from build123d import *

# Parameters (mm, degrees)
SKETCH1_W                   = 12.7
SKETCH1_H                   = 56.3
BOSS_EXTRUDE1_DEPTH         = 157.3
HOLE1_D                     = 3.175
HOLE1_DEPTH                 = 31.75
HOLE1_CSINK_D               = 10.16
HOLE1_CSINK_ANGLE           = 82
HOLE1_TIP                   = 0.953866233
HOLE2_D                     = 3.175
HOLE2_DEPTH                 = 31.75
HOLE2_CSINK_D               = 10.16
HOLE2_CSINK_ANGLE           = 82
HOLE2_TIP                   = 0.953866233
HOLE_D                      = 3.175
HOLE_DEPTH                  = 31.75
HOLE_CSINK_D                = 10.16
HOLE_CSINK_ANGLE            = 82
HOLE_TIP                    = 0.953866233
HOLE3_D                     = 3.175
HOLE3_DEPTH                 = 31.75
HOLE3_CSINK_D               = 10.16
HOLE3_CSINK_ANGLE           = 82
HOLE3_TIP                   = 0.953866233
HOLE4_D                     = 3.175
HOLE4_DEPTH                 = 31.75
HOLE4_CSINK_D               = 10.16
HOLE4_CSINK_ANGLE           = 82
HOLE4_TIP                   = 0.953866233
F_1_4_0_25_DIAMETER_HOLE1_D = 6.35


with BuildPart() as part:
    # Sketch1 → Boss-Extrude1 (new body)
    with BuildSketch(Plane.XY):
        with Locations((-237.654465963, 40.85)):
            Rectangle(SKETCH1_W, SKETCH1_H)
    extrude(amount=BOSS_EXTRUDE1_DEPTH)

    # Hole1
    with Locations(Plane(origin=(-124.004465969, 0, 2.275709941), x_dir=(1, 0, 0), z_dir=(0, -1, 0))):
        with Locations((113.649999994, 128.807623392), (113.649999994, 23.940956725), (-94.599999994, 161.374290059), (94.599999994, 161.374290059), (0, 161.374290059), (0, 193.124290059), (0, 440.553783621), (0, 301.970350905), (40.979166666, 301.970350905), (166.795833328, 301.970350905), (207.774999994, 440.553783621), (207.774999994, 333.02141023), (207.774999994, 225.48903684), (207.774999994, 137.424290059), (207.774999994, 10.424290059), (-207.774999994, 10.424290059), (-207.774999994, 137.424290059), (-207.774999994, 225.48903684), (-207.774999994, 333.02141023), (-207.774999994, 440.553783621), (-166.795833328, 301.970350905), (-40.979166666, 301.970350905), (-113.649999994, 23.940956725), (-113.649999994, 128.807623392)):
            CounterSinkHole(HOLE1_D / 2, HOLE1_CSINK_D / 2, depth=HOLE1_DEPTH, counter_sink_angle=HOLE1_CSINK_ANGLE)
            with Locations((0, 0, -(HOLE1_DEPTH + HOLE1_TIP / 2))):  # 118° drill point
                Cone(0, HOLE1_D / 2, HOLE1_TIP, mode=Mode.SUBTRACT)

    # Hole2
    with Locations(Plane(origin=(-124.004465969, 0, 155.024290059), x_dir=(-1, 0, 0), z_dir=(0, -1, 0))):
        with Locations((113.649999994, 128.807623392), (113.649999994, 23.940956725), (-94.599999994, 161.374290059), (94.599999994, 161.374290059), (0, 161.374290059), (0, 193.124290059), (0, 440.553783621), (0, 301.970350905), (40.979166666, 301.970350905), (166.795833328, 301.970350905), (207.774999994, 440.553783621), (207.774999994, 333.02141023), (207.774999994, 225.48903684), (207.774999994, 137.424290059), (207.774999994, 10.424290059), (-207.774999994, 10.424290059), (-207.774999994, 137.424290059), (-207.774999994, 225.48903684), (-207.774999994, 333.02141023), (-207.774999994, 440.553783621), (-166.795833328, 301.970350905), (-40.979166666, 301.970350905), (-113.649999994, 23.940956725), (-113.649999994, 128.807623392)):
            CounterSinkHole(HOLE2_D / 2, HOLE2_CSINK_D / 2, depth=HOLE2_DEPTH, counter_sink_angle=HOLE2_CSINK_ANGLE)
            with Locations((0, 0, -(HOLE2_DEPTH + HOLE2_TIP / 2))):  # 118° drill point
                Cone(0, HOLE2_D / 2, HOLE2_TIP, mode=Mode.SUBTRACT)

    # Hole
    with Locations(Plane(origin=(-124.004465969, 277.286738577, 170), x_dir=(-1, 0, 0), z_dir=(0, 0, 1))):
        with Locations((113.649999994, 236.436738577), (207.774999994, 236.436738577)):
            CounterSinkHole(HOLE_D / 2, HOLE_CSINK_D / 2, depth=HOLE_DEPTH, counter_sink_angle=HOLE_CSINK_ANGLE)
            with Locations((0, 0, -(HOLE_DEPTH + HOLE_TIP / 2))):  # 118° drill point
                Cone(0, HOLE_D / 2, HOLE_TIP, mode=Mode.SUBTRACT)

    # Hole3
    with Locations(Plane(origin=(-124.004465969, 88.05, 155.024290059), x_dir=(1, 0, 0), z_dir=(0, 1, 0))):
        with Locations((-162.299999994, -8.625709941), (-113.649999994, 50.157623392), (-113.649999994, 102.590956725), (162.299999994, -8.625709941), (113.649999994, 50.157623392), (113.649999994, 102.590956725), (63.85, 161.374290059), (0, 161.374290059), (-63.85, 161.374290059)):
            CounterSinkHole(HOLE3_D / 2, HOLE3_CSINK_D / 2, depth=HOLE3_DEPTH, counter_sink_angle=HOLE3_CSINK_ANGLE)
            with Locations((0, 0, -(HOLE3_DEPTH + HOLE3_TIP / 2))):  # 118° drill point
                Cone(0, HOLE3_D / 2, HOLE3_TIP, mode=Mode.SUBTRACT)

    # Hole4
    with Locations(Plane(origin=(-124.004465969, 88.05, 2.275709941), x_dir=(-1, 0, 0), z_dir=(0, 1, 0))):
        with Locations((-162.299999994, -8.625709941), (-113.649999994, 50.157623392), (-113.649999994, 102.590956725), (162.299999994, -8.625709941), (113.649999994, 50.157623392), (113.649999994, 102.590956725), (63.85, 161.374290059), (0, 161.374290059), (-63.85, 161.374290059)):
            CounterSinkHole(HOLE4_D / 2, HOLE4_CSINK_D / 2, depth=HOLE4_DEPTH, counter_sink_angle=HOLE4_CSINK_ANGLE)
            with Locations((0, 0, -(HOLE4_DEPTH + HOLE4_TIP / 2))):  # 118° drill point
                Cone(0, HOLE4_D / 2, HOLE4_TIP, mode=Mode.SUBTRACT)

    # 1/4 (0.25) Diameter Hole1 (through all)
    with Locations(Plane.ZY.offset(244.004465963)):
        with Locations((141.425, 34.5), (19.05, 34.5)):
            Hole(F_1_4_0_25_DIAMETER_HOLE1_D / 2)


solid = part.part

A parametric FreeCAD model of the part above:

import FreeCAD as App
import Part
import Sketcher

V = App.Vector
Q = App.Units.Quantity


def add_polygon(sketch, points):
    """Adds a closed chain of lines whose ends are joined by coincident constraints."""
    first, n = sketch.GeometryCount, len(points)
    for a, b in zip(points, points[1:] + points[:1]):
        sketch.addGeometry(Part.LineSegment(App.Vector(*a, 0), App.Vector(*b, 0)), False)
    for i in range(n):
        sketch.addConstraint(Sketcher.Constraint("Coincident", first + i, 2, first + (i + 1) % n, 1))

doc = App.newDocument("Part")
body = doc.addObject("PartDesign::Body", "Body")

sketch1 = doc.addObject("Sketcher::SketchObject", "Sketch")
body.addObject(sketch1)
sketch1.AttachmentSupport = (doc.XY_Plane, [""])
sketch1.MapMode = "FlatFace"
add_polygon(sketch1, [(-244, 69), (-244, 13), (-231, 13), (-231, 69)])
sketch1.addConstraint([
    Sketcher.Constraint("Vertical", 0),
    Sketcher.Constraint("Horizontal", 1),
    Sketcher.Constraint("Vertical", 2),
    Sketcher.Constraint("Horizontal", 3),
    Sketcher.Constraint("DistanceX", 1, 1, 1, 2, Q("0.5 in")),
    Sketcher.Constraint("DistanceY", -1, 1, 0, 2, Q("0.5 in")),
    Sketcher.Constraint("DistanceY", 0, 2, 0, 1, 56.3),
    Sketcher.Constraint("DistanceX", 0, 2, -1, 1, 244.004466),
])
pad1 = doc.addObject("PartDesign::Pad", "Pad")
body.addObject(pad1)
pad1.Profile = sketch1
pad1.Length = 157.3

sketch2 = doc.addObject("Sketcher::SketchObject", "Sketch001")
body.addObject(sketch2)
sketch2.AttachmentSupport = (doc.XZ_Plane, [""])
sketch2.MapMode = "FlatFace"
sketch2.addGeometry([
    Part.Circle(V(-10.4, 131.1, 0), V(0, 0, 1), 1.6),
    Part.Circle(V(-10.4, 26.2, 0), V(0, 0, 1), 1.6),
    Part.Circle(V(-218.6, 163.7, 0), V(0, 0, 1), 1.6),
    Part.Circle(V(-29.4, 163.7, 0), V(0, 0, 1), 1.6),
    Part.Circle(V(-124, 163.7, 0), V(0, 0, 1), 1.6),
    Part.Circle(V(-124, 195.4, 0), V(0, 0, 1), 1.6),
    Part.Circle(V(-124, 442.8, 0), V(0, 0, 1), 1.6),
    Part.Circle(V(-124, 304.2, 0), V(0, 0, 1), 1.6),
    Part.Circle(V(-83, 304.2, 0), V(0, 0, 1), 1.6),
    Part.Circle(V(42.8, 304.2, 0), V(0, 0, 1), 1.6),
    Part.Circle(V(83.8, 442.8, 0), V(0, 0, 1), 1.6),
    Part.Circle(V(83.8, 335.3, 0), V(0, 0, 1), 1.6),
    Part.Circle(V(83.8, 227.8, 0), V(0, 0, 1), 1.6),
    Part.Circle(V(83.8, 139.7, 0), V(0, 0, 1), 1.6),
    Part.Circle(V(83.8, 12.7, 0), V(0, 0, 1), 1.6),
    Part.Circle(V(-331.8, 12.7, 0), V(0, 0, 1), 1.6),
    Part.Circle(V(-331.8, 139.7, 0), V(0, 0, 1), 1.6),
    Part.Circle(V(-331.8, 227.8, 0), V(0, 0, 1), 1.6),
    Part.Circle(V(-331.8, 335.3, 0), V(0, 0, 1), 1.6),
    Part.Circle(V(-331.8, 442.8, 0), V(0, 0, 1), 1.6),
    Part.Circle(V(-290.8, 304.2, 0), V(0, 0, 1), 1.6),
    Part.Circle(V(-165, 304.2, 0), V(0, 0, 1), 1.6),
    Part.Circle(V(-237.7, 26.2, 0), V(0, 0, 1), 1.6),
    Part.Circle(V(-237.7, 131.1, 0), V(0, 0, 1), 1.6),
], False)
sketch2.addConstraint([
    Sketcher.Constraint("Equal", 0, 1),
    Sketcher.Constraint("Equal", 1, 2),
    Sketcher.Constraint("Equal", 2, 3),
    Sketcher.Constraint("Equal", 3, 4),
    Sketcher.Constraint("Equal", 4, 5),
    Sketcher.Constraint("Equal", 5, 6),
    Sketcher.Constraint("Equal", 6, 7),
    Sketcher.Constraint("Equal", 7, 8),
    Sketcher.Constraint("Equal", 8, 9),
    Sketcher.Constraint("Equal", 9, 10),
    Sketcher.Constraint("Equal", 10, 11),
    Sketcher.Constraint("Equal", 11, 12),
    Sketcher.Constraint("Equal", 12, 13),
    Sketcher.Constraint("Equal", 13, 14),
    Sketcher.Constraint("Equal", 14, 15),
    Sketcher.Constraint("Equal", 15, 16),
    Sketcher.Constraint("Equal", 16, 17),
    Sketcher.Constraint("Equal", 17, 18),
    Sketcher.Constraint("Equal", 18, 19),
    Sketcher.Constraint("Equal", 19, 20),
    Sketcher.Constraint("Equal", 20, 21),
    Sketcher.Constraint("Equal", 21, 22),
    Sketcher.Constraint("Equal", 22, 23),
    Sketcher.Constraint("Horizontal", 2, 3, 3, 3),
    Sketcher.Constraint("Horizontal", 3, 3, 4, 3),
    Sketcher.Constraint("Horizontal", 7, 3, 8, 3),
    Sketcher.Constraint("Horizontal", 8, 3, 9, 3),
    Sketcher.Constraint("Horizontal", 6, 3, 10, 3),
    Sketcher.Constraint("Horizontal", 14, 3, 15, 3),
    Sketcher.Constraint("Horizontal", 13, 3, 16, 3),
    Sketcher.Constraint("Horizontal", 12, 3, 17, 3),
    Sketcher.Constraint("Horizontal", 11, 3, 18, 3),
    Sketcher.Constraint("Horizontal", 10, 3, 19, 3),
    Sketcher.Constraint("Horizontal", 9, 3, 20, 3),
    Sketcher.Constraint("Horizontal", 20, 3, 21, 3),
    Sketcher.Constraint("Horizontal", 1, 3, 22, 3),
    Sketcher.Constraint("Horizontal", 0, 3, 23, 3),
    Sketcher.Constraint("Vertical", 0, 3, 1, 3),
    Sketcher.Constraint("Vertical", 4, 3, 5, 3),
    Sketcher.Constraint("Vertical", 5, 3, 6, 3),
    Sketcher.Constraint("Vertical", 6, 3, 7, 3),
    Sketcher.Constraint("Vertical", 10, 3, 11, 3),
    Sketcher.Constraint("Vertical", 11, 3, 12, 3),
    Sketcher.Constraint("Vertical", 12, 3, 13, 3),
    Sketcher.Constraint("Vertical", 13, 3, 14, 3),
    Sketcher.Constraint("Vertical", 15, 3, 16, 3),
    Sketcher.Constraint("Vertical", 16, 3, 17, 3),
    Sketcher.Constraint("Vertical", 17, 3, 18, 3),
    Sketcher.Constraint("Vertical", 18, 3, 19, 3),
    Sketcher.Constraint("Vertical", 22, 3, 23, 3),
    Sketcher.Constraint("Diameter", 0, Q("0.125 in")),
    Sketcher.Constraint("DistanceY", 14, 3, 13, 3, Q("5 in")),
    Sketcher.Constraint("DistanceY", -1, 1, 13, 3, Q("5.5 in")),
    Sketcher.Constraint("DistanceX", 3, 3, 0, 3, Q("0.75 in")),
    Sketcher.Constraint("DistanceY", 4, 3, 5, 3, Q("1.25 in")),
    Sketcher.Constraint("DistanceX", 22, 3, 2, 3, Q("0.75 in")),
    Sketcher.Constraint("DistanceY", -1, 1, 2, 3, 163.65),
    Sketcher.Constraint("DistanceX", 8, 3, -1, 1, 83.025299),
    Sketcher.Constraint("DistanceX", 20, 3, -1, 1, 290.800299),
    Sketcher.Constraint("DistanceX", 2, 3, 0, 3, 208.25),
    Sketcher.Constraint("DistanceX", 2, 3, 4, 3, 94.6),
    Sketcher.Constraint("DistanceX", 6, 3, 10, 3, 207.775),
    Sketcher.Constraint("DistanceX", 15, 3, 2, 3, 113.175),
    Sketcher.Constraint("DistanceY", -1, 1, 7, 3, 304.246061),
    Sketcher.Constraint("DistanceY", -1, 1, 11, 3, 335.29712),
    Sketcher.Constraint("DistanceY", 0, 3, 6, 3, 311.74616),
    Sketcher.Constraint("DistanceX", 0, 3, -1, 1, 10.354466),
    Sketcher.Constraint("DistanceY", -1, 1, 0, 3, 131.083333),
    Sketcher.Constraint("DistanceY", -1, 1, 1, 3, 26.216667),
    Sketcher.Constraint("DistanceX", -1, 1, 9, 3, 42.791367),
    Sketcher.Constraint("DistanceY", -1, 1, 12, 3, 227.764747),
    Sketcher.Constraint("DistanceX", 21, 3, -1, 1, 164.983633),
])
doc.recompute()
hole = doc.addObject("PartDesign::Hole", "Hole")
body.addObject(hole)
hole.Profile = sketch2
hole.ThreadType = "None"
hole.Diameter = Q("0.125 in")
hole.DepthType = "Dimension"
hole.Depth = Q("1.25 in")
hole.DrillPoint = "Angled"
hole.DrillPointAngle = 118
hole.HoleCutType = "Countersink"
hole.HoleCutDiameter = Q("0.4 in")
hole.HoleCutCountersinkAngle = 82

sketch3 = doc.addObject("Sketcher::SketchObject", "Sketch002")
body.addObject(sketch3)
sketch3.AttachmentSupport = (doc.XZ_Plane, [""])
sketch3.MapMode = "FlatFace"
sketch3.addGeometry([
    Part.Circle(V(-237.7, 26.2, 0), V(0, 0, 1), 1.6),
    Part.Circle(V(-237.7, 131.1, 0), V(0, 0, 1), 1.6),
    Part.Circle(V(-29.4, -6.3, 0), V(0, 0, 1), 1.6),
    Part.Circle(V(-218.6, -6.3, 0), V(0, 0, 1), 1.6),
    Part.Circle(V(-124, -6.3, 0), V(0, 0, 1), 1.6),
    Part.Circle(V(-124, -38.1, 0), V(0, 0, 1), 1.6),
    Part.Circle(V(-124, -285.5, 0), V(0, 0, 1), 1.6),
    Part.Circle(V(-124, -146.9, 0), V(0, 0, 1), 1.6),
    Part.Circle(V(-165, -146.9, 0), V(0, 0, 1), 1.6),
    Part.Circle(V(-290.8, -146.9, 0), V(0, 0, 1), 1.6),
    Part.Circle(V(-331.8, -285.5, 0), V(0, 0, 1), 1.6),
    Part.Circle(V(-331.8, -178, 0), V(0, 0, 1), 1.6),
    Part.Circle(V(-331.8, -70.5, 0), V(0, 0, 1), 1.6),
    Part.Circle(V(-331.8, 17.6, 0), V(0, 0, 1), 1.6),
    Part.Circle(V(-331.8, 144.6, 0), V(0, 0, 1), 1.6),
    Part.Circle(V(83.8, 144.6, 0), V(0, 0, 1), 1.6),
    Part.Circle(V(83.8, 17.6, 0), V(0, 0, 1), 1.6),
    Part.Circle(V(83.8, -70.5, 0), V(0, 0, 1), 1.6),
    Part.Circle(V(83.8, -178, 0), V(0, 0, 1), 1.6),
    Part.Circle(V(83.8, -285.5, 0), V(0, 0, 1), 1.6),
    Part.Circle(V(42.8, -146.9, 0), V(0, 0, 1), 1.6),
    Part.Circle(V(-83, -146.9, 0), V(0, 0, 1), 1.6),
    Part.Circle(V(-10.4, 131.1, 0), V(0, 0, 1), 1.6),
    Part.Circle(V(-10.4, 26.2, 0), V(0, 0, 1), 1.6),
], False)
sketch3.addConstraint([
    Sketcher.Constraint("Equal", 0, 1),
    Sketcher.Constraint("Equal", 1, 2),
    Sketcher.Constraint("Equal", 2, 3),
    Sketcher.Constraint("Equal", 3, 4),
    Sketcher.Constraint("Equal", 4, 5),
    Sketcher.Constraint("Equal", 5, 6),
    Sketcher.Constraint("Equal", 6, 7),
    Sketcher.Constraint("Equal", 7, 8),
    Sketcher.Constraint("Equal", 8, 9),
    Sketcher.Constraint("Equal", 9, 10),
    Sketcher.Constraint("Equal", 10, 11),
    Sketcher.Constraint("Equal", 11, 12),
    Sketcher.Constraint("Equal", 12, 13),
    Sketcher.Constraint("Equal", 13, 14),
    Sketcher.Constraint("Equal", 14, 15),
    Sketcher.Constraint("Equal", 15, 16),
    Sketcher.Constraint("Equal", 16, 17),
    Sketcher.Constraint("Equal", 17, 18),
    Sketcher.Constraint("Equal", 18, 19),
    Sketcher.Constraint("Equal", 19, 20),
    Sketcher.Constraint("Equal", 20, 21),
    Sketcher.Constraint("Equal", 21, 22),
    Sketcher.Constraint("Equal", 22, 23),
    Sketcher.Constraint("Horizontal", 2, 3, 3, 3),
    Sketcher.Constraint("Horizontal", 3, 3, 4, 3),
    Sketcher.Constraint("Horizontal", 7, 3, 8, 3),
    Sketcher.Constraint("Horizontal", 8, 3, 9, 3),
    Sketcher.Constraint("Horizontal", 6, 3, 10, 3),
    Sketcher.Constraint("Horizontal", 14, 3, 15, 3),
    Sketcher.Constraint("Horizontal", 13, 3, 16, 3),
    Sketcher.Constraint("Horizontal", 12, 3, 17, 3),
    Sketcher.Constraint("Horizontal", 11, 3, 18, 3),
    Sketcher.Constraint("Horizontal", 10, 3, 19, 3),
    Sketcher.Constraint("Horizontal", 9, 3, 20, 3),
    Sketcher.Constraint("Horizontal", 20, 3, 21, 3),
    Sketcher.Constraint("Horizontal", 1, 3, 22, 3),
    Sketcher.Constraint("Horizontal", 0, 3, 23, 3),
    Sketcher.Constraint("Vertical", 0, 3, 1, 3),
    Sketcher.Constraint("Vertical", 4, 3, 5, 3),
    Sketcher.Constraint("Vertical", 5, 3, 6, 3),
    Sketcher.Constraint("Vertical", 6, 3, 7, 3),
    Sketcher.Constraint("Vertical", 10, 3, 11, 3),
    Sketcher.Constraint("Vertical", 11, 3, 12, 3),
    Sketcher.Constraint("Vertical", 12, 3, 13, 3),
    Sketcher.Constraint("Vertical", 13, 3, 14, 3),
    Sketcher.Constraint("Vertical", 15, 3, 16, 3),
    Sketcher.Constraint("Vertical", 16, 3, 17, 3),
    Sketcher.Constraint("Vertical", 17, 3, 18, 3),
    Sketcher.Constraint("Vertical", 18, 3, 19, 3),
    Sketcher.Constraint("Vertical", 22, 3, 23, 3),
    Sketcher.Constraint("Diameter", 0, Q("0.125 in")),
    Sketcher.Constraint("DistanceY", 13, 3, 14, 3, Q("5 in")),
    Sketcher.Constraint("DistanceY", 5, 3, -1, 1, Q("1.5 in")),
    Sketcher.Constraint("DistanceY", 2, 3, -1, 1, Q("0.25 in")),
    Sketcher.Constraint("DistanceX", 0, 3, 3, 3, Q("0.75 in")),
    Sketcher.Constraint("DistanceX", 2, 3, 22, 3, Q("0.75 in")),
    Sketcher.Constraint("DistanceX", 9, 3, -1, 1, 290.800299),
    Sketcher.Constraint("DistanceY", -1, 1, 13, 3, 17.6),
    Sketcher.Constraint("DistanceX", 21, 3, -1, 1, 83.025299),
    Sketcher.Constraint("DistanceX", 0, 3, 2, 3, 208.25),
    Sketcher.Constraint("DistanceX", 4, 3, 2, 3, 94.6),
    Sketcher.Constraint("DistanceX", 10, 3, 6, 3, 207.775),
    Sketcher.Constraint("DistanceX", 2, 3, 15, 3, 113.175),
    Sketcher.Constraint("DistanceY", 7, 3, -1, 1, 146.946061),
    Sketcher.Constraint("DistanceY", 11, 3, -1, 1, 177.99712),
    Sketcher.Constraint("DistanceY", 6, 3, 0, 3, 311.74616),
    Sketcher.Constraint("DistanceX", 0, 3, -1, 1, 237.654466),
    Sketcher.Constraint("DistanceY", -1, 1, 0, 3, 26.216667),
    Sketcher.Constraint("DistanceY", -1, 1, 1, 3, 131.083333),
    Sketcher.Constraint("DistanceX", 8, 3, -1, 1, 164.983633),
    Sketcher.Constraint("DistanceY", 12, 3, -1, 1, 70.464747),
    Sketcher.Constraint("DistanceX", -1, 1, 20, 3, 42.791367),
])
doc.recompute()
hole2 = doc.addObject("PartDesign::Hole", "Hole001")
body.addObject(hole2)
hole2.Profile = sketch3
hole2.ThreadType = "None"
hole2.Diameter = Q("0.125 in")
hole2.DepthType = "Dimension"
hole2.Depth = Q("1.25 in")
hole2.DrillPoint = "Angled"
hole2.DrillPointAngle = 118
hole2.HoleCutType = "Countersink"
hole2.HoleCutDiameter = Q("0.4 in")
hole2.HoleCutCountersinkAngle = 82

sketch4 = doc.addObject("Sketcher::SketchObject", "Sketch003")
body.addObject(sketch4)
sketch4.AttachmentSupport = (doc.XY_Plane, [""])
sketch4.MapMode = "FlatFace"
sketch4.AttachmentOffset = App.Placement(V(0, 0, 170), App.Rotation())
sketch4.addGeometry([
    Part.Circle(V(-237.7, 40.9, 0), V(0, 0, 1), 1.6),
    Part.Circle(V(-331.8, 40.9, 0), V(0, 0, 1), 1.6),
], False)
sketch4.addConstraint([
    Sketcher.Constraint("Equal", 0, 1),
    Sketcher.Constraint("Horizontal", 0, 3, 1, 3),
    Sketcher.Constraint("Diameter", 0, Q("0.125 in")),
    Sketcher.Constraint("DistanceY", -1, 1, 0, 3, 40.85),
    Sketcher.Constraint("DistanceX", 1, 3, 0, 3, 94.125),
    Sketcher.Constraint("DistanceX", 0, 3, -1, 1, 237.654466),
])
doc.recompute()
hole3 = doc.addObject("PartDesign::Hole", "Hole002")
body.addObject(hole3)
hole3.Profile = sketch4
hole3.ThreadType = "None"
hole3.Diameter = Q("0.125 in")
hole3.DepthType = "Dimension"
hole3.Depth = Q("1.25 in")
hole3.DrillPoint = "Angled"
hole3.DrillPointAngle = 118
hole3.HoleCutType = "Countersink"
hole3.HoleCutDiameter = Q("0.4 in")
hole3.HoleCutCountersinkAngle = 82

sketch5 = doc.addObject("Sketcher::SketchObject", "Sketch004")
body.addObject(sketch5)
sketch5.AttachmentSupport = (doc.XZ_Plane, [""])
sketch5.MapMode = "FlatFace"
sketch5.AttachmentOffset = App.Placement(V(0, 0, -88.05), App.Rotation())
sketch5.addGeometry([
    Part.Circle(V(-286.3, 163.7, 0), V(0, 0, 1), 1.6),
    Part.Circle(V(-237.7, 104.9, 0), V(0, 0, 1), 1.6),
    Part.Circle(V(-237.7, 52.4, 0), V(0, 0, 1), 1.6),
    Part.Circle(V(38.3, 163.7, 0), V(0, 0, 1), 1.6),
    Part.Circle(V(-10.4, 104.9, 0), V(0, 0, 1), 1.6),
    Part.Circle(V(-10.4, 52.4, 0), V(0, 0, 1), 1.6),
    Part.Circle(V(-60.2, -6.3, 0), V(0, 0, 1), 1.6),
    Part.Circle(V(-124, -6.3, 0), V(0, 0, 1), 1.6),
    Part.Circle(V(-187.9, -6.3, 0), V(0, 0, 1), 1.6),
], False)
sketch5.addConstraint([
    Sketcher.Constraint("Equal", 0, 1),
    Sketcher.Constraint("Equal", 1, 2),
    Sketcher.Constraint("Equal", 2, 3),
    Sketcher.Constraint("Equal", 3, 4),
    Sketcher.Constraint("Equal", 4, 5),
    Sketcher.Constraint("Equal", 5, 6),
    Sketcher.Constraint("Equal", 6, 7),
    Sketcher.Constraint("Equal", 7, 8),
    Sketcher.Constraint("Horizontal", 0, 3, 3, 3),
    Sketcher.Constraint("Horizontal", 1, 3, 4, 3),
    Sketcher.Constraint("Horizontal", 2, 3, 5, 3),
    Sketcher.Constraint("Horizontal", 6, 3, 7, 3),
    Sketcher.Constraint("Horizontal", 7, 3, 8, 3),
    Sketcher.Constraint("Vertical", 1, 3, 2, 3),
    Sketcher.Constraint("Vertical", 4, 3, 5, 3),
    Sketcher.Constraint("Diameter", 0, Q("0.125 in")),
    Sketcher.Constraint("DistanceY", 6, 3, -1, 1, Q("0.25 in")),
    Sketcher.Constraint("DistanceY", -1, 1, 0, 3, 163.65),
    Sketcher.Constraint("DistanceX", 0, 3, 1, 3, 48.65),
    Sketcher.Constraint("DistanceX", 1, 3, 3, 3, 275.95),
    Sketcher.Constraint("DistanceX", 4, 3, 3, 3, 48.65),
    Sketcher.Constraint("DistanceX", 6, 3, 5, 3, 49.8),
    Sketcher.Constraint("DistanceX", 7, 3, 6, 3, 63.85),
    Sketcher.Constraint("DistanceX", 8, 3, 7, 3, 63.85),
    Sketcher.Constraint("DistanceX", 0, 3, -1, 1, 286.304466),
    Sketcher.Constraint("DistanceY", -1, 1, 1, 3, 104.866667),
    Sketcher.Constraint("DistanceY", -1, 1, 2, 3, 52.433333),
])
doc.recompute()
hole4 = doc.addObject("PartDesign::Hole", "Hole003")
body.addObject(hole4)
hole4.Profile = sketch5
hole4.ThreadType = "None"
hole4.Diameter = Q("0.125 in")
hole4.DepthType = "Dimension"
hole4.Depth = Q("1.25 in")
hole4.DrillPoint = "Angled"
hole4.DrillPointAngle = 118
hole4.HoleCutType = "Countersink"
hole4.HoleCutDiameter = Q("0.4 in")
hole4.HoleCutCountersinkAngle = 82
hole4.Reversed = True

sketch6 = doc.addObject("Sketcher::SketchObject", "Sketch005")
body.addObject(sketch6)
sketch6.AttachmentSupport = (doc.XZ_Plane, [""])
sketch6.MapMode = "FlatFace"
sketch6.AttachmentOffset = App.Placement(V(0, 0, -88.05), App.Rotation())
sketch6.addGeometry([
    Part.Circle(V(38.3, -6.3, 0), V(0, 0, 1), 1.6),
    Part.Circle(V(-10.4, 52.4, 0), V(0, 0, 1), 1.6),
    Part.Circle(V(-10.4, 104.9, 0), V(0, 0, 1), 1.6),
    Part.Circle(V(-286.3, -6.3, 0), V(0, 0, 1), 1.6),
    Part.Circle(V(-237.7, 52.4, 0), V(0, 0, 1), 1.6),
    Part.Circle(V(-237.7, 104.9, 0), V(0, 0, 1), 1.6),
    Part.Circle(V(-187.9, 163.7, 0), V(0, 0, 1), 1.6),
    Part.Circle(V(-124, 163.7, 0), V(0, 0, 1), 1.6),
    Part.Circle(V(-60.2, 163.7, 0), V(0, 0, 1), 1.6),
], False)
sketch6.addConstraint([
    Sketcher.Constraint("Equal", 0, 1),
    Sketcher.Constraint("Equal", 1, 2),
    Sketcher.Constraint("Equal", 2, 3),
    Sketcher.Constraint("Equal", 3, 4),
    Sketcher.Constraint("Equal", 4, 5),
    Sketcher.Constraint("Equal", 5, 6),
    Sketcher.Constraint("Equal", 6, 7),
    Sketcher.Constraint("Equal", 7, 8),
    Sketcher.Constraint("Horizontal", 0, 3, 3, 3),
    Sketcher.Constraint("Horizontal", 1, 3, 4, 3),
    Sketcher.Constraint("Horizontal", 2, 3, 5, 3),
    Sketcher.Constraint("Horizontal", 6, 3, 7, 3),
    Sketcher.Constraint("Horizontal", 7, 3, 8, 3),
    Sketcher.Constraint("Vertical", 1, 3, 2, 3),
    Sketcher.Constraint("Vertical", 4, 3, 5, 3),
    Sketcher.Constraint("Diameter", 0, Q("0.125 in")),
    Sketcher.Constraint("DistanceY", 0, 3, -1, 1, Q("0.25 in")),
    Sketcher.Constraint("DistanceY", -1, 1, 6, 3, 163.65),
    Sketcher.Constraint("DistanceX", 1, 3, 0, 3, 48.65),
    Sketcher.Constraint("DistanceX", 3, 3, 1, 3, 275.95),
    Sketcher.Constraint("DistanceX", 3, 3, 4, 3, 48.65),
    Sketcher.Constraint("DistanceX", 5, 3, 6, 3, 49.8),
    Sketcher.Constraint("DistanceX", 6, 3, 7, 3, 63.85),
    Sketcher.Constraint("DistanceX", 7, 3, 8, 3, 63.85),
    Sketcher.Constraint("DistanceX", -1, 1, 0, 3, 38.295534),
    Sketcher.Constraint("DistanceY", -1, 1, 1, 3, 52.433333),
    Sketcher.Constraint("DistanceY", -1, 1, 2, 3, 104.866667),
])
doc.recompute()
hole5 = doc.addObject("PartDesign::Hole", "Hole004")
body.addObject(hole5)
hole5.Profile = sketch6
hole5.ThreadType = "None"
hole5.Diameter = Q("0.125 in")
hole5.DepthType = "Dimension"
hole5.Depth = Q("1.25 in")
hole5.DrillPoint = "Angled"
hole5.DrillPointAngle = 118
hole5.HoleCutType = "Countersink"
hole5.HoleCutDiameter = Q("0.4 in")
hole5.HoleCutCountersinkAngle = 82
hole5.Reversed = True

sketch7 = doc.addObject("Sketcher::SketchObject", "Sketch006")
body.addObject(sketch7)
sketch7.AttachmentSupport = (doc.YZ_Plane, [""])
sketch7.MapMode = "FlatFace"
sketch7.AttachmentOffset = App.Placement(V(0, 0, -244.004466), App.Rotation())
sketch7.addGeometry([
    Part.Circle(V(34.5, 141.4, 0), V(0, 0, 1), 3.2),
    Part.Circle(V(34.5, 19.1, 0), V(0, 0, 1), 3.2),
], False)
sketch7.addConstraint([
    Sketcher.Constraint("Equal", 0, 1),
    Sketcher.Constraint("Vertical", 0, 3, 1, 3),
    Sketcher.Constraint("Diameter", 0, Q("0.25 in")),
    Sketcher.Constraint("DistanceY", -1, 1, 1, 3, Q("0.75 in")),
    Sketcher.Constraint("DistanceX", -1, 1, 0, 3, 34.5),
    Sketcher.Constraint("DistanceY", -1, 1, 0, 3, 141.425),
])
doc.recompute()
hole6 = doc.addObject("PartDesign::Hole", "Hole005")
body.addObject(hole6)
hole6.Profile = sketch7
hole6.ThreadType = "None"
hole6.Diameter = Q("0.25 in")
hole6.DepthType = "ThroughAll"
hole6.Reversed = True

doc.recompute()
